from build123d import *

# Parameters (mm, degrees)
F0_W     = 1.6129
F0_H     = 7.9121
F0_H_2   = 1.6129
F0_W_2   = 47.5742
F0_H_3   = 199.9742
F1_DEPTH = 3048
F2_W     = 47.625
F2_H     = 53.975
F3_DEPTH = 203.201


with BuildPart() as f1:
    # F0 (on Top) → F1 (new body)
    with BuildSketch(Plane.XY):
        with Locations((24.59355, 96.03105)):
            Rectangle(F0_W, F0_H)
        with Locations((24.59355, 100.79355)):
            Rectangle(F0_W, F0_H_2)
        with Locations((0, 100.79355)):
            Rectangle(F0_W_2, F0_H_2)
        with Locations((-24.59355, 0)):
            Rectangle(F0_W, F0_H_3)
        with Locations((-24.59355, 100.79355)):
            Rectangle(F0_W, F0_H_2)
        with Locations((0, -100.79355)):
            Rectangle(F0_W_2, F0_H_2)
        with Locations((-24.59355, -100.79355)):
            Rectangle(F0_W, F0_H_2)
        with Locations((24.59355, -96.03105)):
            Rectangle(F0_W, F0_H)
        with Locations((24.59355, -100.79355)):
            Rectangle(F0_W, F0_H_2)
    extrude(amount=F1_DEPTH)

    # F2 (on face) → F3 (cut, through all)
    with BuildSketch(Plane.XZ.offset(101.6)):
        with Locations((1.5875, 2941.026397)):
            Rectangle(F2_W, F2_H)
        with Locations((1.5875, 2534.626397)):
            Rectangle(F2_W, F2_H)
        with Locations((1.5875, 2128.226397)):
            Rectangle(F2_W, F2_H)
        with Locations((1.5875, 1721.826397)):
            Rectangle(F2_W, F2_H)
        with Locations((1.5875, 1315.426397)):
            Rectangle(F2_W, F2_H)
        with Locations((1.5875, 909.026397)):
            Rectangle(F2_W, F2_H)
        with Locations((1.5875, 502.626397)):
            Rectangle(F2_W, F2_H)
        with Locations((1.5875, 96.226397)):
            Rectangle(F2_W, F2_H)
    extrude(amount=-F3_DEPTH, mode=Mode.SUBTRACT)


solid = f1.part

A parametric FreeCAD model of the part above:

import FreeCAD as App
import Part
import Sketcher
from FreeCAD import Vector
Q = App.Units.Quantity


def add_polygon(sketch, points):
    """Adds a closed chain of lines whose ends are joined by coincident constraints."""
    first, n = sketch.GeometryCount, len(points)
    for a, b in zip(points, points[1:] + points[:1]):
        sketch.addGeometry(Part.LineSegment(App.Vector(*a, 0), App.Vector(*b, 0)), False)
    for i in range(n):
        sketch.addConstraint(Sketcher.Constraint("Coincident", first + i, 2, first + (i + 1) % n, 1))

doc = App.newDocument("Part")
body = doc.addObject("PartDesign::Body", "Body")

sketch1 = body.newObject("Sketcher::SketchObject", "Sketch")
sketch1.AttachmentSupport = (doc.getObject("XY_Plane"), [""])
sketch1.MapMode = "FlatFace"
add_polygon(sketch1, [(23.8, 92.1), (25.4, 92.1), (25.4, 101.6), (-25.4, 101.6), (-25.4, -101.6), (25.4, -101.6), (25.4, -92.1), (23.8, -92.1), (23.8, -100), (-23.8, -100), (-23.8, 100), (23.8, 100)])
sketch1.addConstraint([
    Sketcher.Constraint("Horizontal", 0),
    Sketcher.Constraint("Vertical", 1),
    Sketcher.Constraint("Horizontal", 2),
    Sketcher.Constraint("Vertical", 3),
    Sketcher.Constraint("Horizontal", 4),
    Sketcher.Constraint("Vertical", 5),
    Sketcher.Constraint("Horizontal", 6),
    Sketcher.Constraint("Vertical", 7),
    Sketcher.Constraint("Horizontal", 8),
    Sketcher.Constraint("Vertical", 9),
    Sketcher.Constraint("Horizontal", 10),
    Sketcher.Constraint("Vertical", 11),
    Sketcher.Constraint("Symmetric", 1, 2, 3, 2, -1, 1),
    Sketcher.Constraint("Symmetric", 7, 2, 9, 2, -1, 1),
    Sketcher.Constraint("Symmetric", 0, 2, 5, 2, -1),
    Sketcher.Constraint("Vertical", 7, 2, 10, 2),
    Sketcher.Constraint("DistanceX", 2, 2, 2, 1, Q("2 in")),
    Sketcher.Constraint("DistanceY", 3, 2, 3, 1, Q("8 in")),
    Sketcher.Constraint("DistanceX", 8, 2, 8, 1, Q("1.873 in")),
    Sketcher.Constraint("DistanceY", 1, 1, 1, 2, Q("0.375 in")),
    Sketcher.Constraint("DistanceY", 9, 1, 9, 2, Q("7.873 in")),
])
pad1 = body.newObject("PartDesign::Pad", "Pad")
pad1.Profile = sketch1
pad1.Length = Q("120 in")

sketch2 = body.newObject("Sketcher::SketchObject", "Sketch001")
sketch2.AttachmentSupport = (doc.getObject("XZ_Plane"), [""])
sketch2.MapMode = "FlatFace"
sketch2.AttachmentOffset = App.Placement(Vector(0, 0, 4 * 25.4), App.Rotation())
add_polygon(sketch2, [(-22, 2968), (-22, 2914), (25, 2914), (25, 2968)])
add_polygon(sketch2, [(-22, 2562), (-22, 2508), (25, 2508), (25, 2562)])
add_polygon(sketch2, [(-22, 2155), (-22, 2101), (25, 2101), (25, 2155)])
add_polygon(sketch2, [(-22, 1749), (-22, 1695), (25, 1695), (25, 1749)])
add_polygon(sketch2, [(-22, 1342), (-22, 1288), (25, 1288), (25, 1342)])
add_polygon(sketch2, [(-22, 936), (-22, 882), (25, 882), (25, 936)])
add_polygon(sketch2, [(-22, 530), (-22, 476), (25, 476), (25, 530)])
add_polygon(sketch2, [(-22, 123), (-22, 69), (25, 69), (25, 123)])
sketch2.addConstraint([
    Sketcher.Constraint("Vertical", 0),
    Sketcher.Constraint("Horizontal", 1),
    Sketcher.Constraint("Vertical", 2),
    Sketcher.Constraint("Horizontal", 3),
    Sketcher.Constraint("Vertical", 4),
    Sketcher.Constraint("Horizontal", 5),
    Sketcher.Constraint("Vertical", 6),
    Sketcher.Constraint("Horizontal", 7),
    Sketcher.Constraint("Vertical", 8),
    Sketcher.Constraint("Horizontal", 9),
    Sketcher.Constraint("Vertical", 10),
    Sketcher.Constraint("Horizontal", 11),
    Sketcher.Constraint("Vertical", 12),
    Sketcher.Constraint("Horizontal", 13),
    Sketcher.Constraint("Vertical", 14),
    Sketcher.Constraint("Horizontal", 15),
    Sketcher.Constraint("Vertical", 16),
    Sketcher.Constraint("Horizontal", 17),
    Sketcher.Constraint("Vertical", 18),
    Sketcher.Constraint("Horizontal", 19),
    Sketcher.Constraint("Vertical", 20),
    Sketcher.Constraint("Horizontal", 21),
    Sketcher.Constraint("Vertical", 22),
    Sketcher.Constraint("Horizontal", 23),
    Sketcher.Constraint("Vertical", 24),
    Sketcher.Constraint("Horizontal", 25),
    Sketcher.Constraint("Vertical", 26),
    Sketcher.Constraint("Horizontal", 27),
    Sketcher.Constraint("Vertical", 28),
    Sketcher.Constraint("Horizontal", 29),
    Sketcher.Constraint("Vertical", 30),
    Sketcher.Constraint("Horizontal", 31),
    Sketcher.Constraint("Vertical", 3, 2, 4, 2),
    Sketcher.Constraint("Vertical", 2, 2, 5, 2),
    Sketcher.Constraint("Vertical", 7, 2, 8, 2),
    Sketcher.Constraint("Vertical", 6, 2, 9, 2),
    Sketcher.Constraint("Vertical", 11, 2, 12, 2),
    Sketcher.Constraint("Vertical", 10, 2, 13, 2),
    Sketcher.Constraint("Vertical", 15, 2, 16, 2),
    Sketcher.Constraint("Vertical", 14, 2, 17, 2),
    Sketcher.Constraint("Vertical", 19, 2, 20, 2),
    Sketcher.Constraint("Vertical", 18, 2, 21, 2),
    Sketcher.Constraint("Vertical", 23, 2, 24, 2),
    Sketcher.Constraint("Vertical", 22, 2, 25, 2),
    Sketcher.Constraint("Vertical", 27, 2, 28, 2),
    Sketcher.Constraint("Vertical", 26, 2, 29, 2),
    Sketcher.Constraint("Equal", 2, 4),
    Sketcher.Constraint("Equal", 6, 8),
    Sketcher.Constraint("Equal", 10, 12),
    Sketcher.Constraint("Equal", 14, 16),
    Sketcher.Constraint("Equal", 18, 20),
    Sketcher.Constraint("Equal", 22, 24),
    Sketcher.Constraint("Equal", 26, 28),
    Sketcher.Constraint("DistanceX", -1, 1, 1, 2, Q("1 in")),
    Sketcher.Constraint("DistanceY", 4, 2, 0, 2, Q("16 in")),
    Sketcher.Constraint("DistanceY", 8, 2, 4, 2, Q("16 in")),
    Sketcher.Constraint("DistanceY", 12, 2, 8, 2, Q("16 in")),
    Sketcher.Constraint("DistanceY", 16, 2, 12, 2, Q("16 in")),
    Sketcher.Constraint("DistanceY", 20, 2, 16, 2, Q("16 in")),
    Sketcher.Constraint("DistanceY", 24, 2, 20, 2, Q("16 in")),
    Sketcher.Constraint("DistanceY", 28, 2, 24, 2, Q("16 in")),
    Sketcher.Constraint("DistanceX", 1, 1, 1, 2, Q("1.875 in")),
    Sketcher.Constraint("DistanceY", 0, 2, 0, 1, Q("2.125 in")),
    Sketcher.Constraint("DistanceY", -1, 1, 0, 2, Q("2914.038897 mm")),
])
pocket1 = body.newObject("PartDesign::Pocket", "Pocket")
pocket1.Profile = sketch2
pocket1.Type = "ThroughAll"

doc.recompute()
